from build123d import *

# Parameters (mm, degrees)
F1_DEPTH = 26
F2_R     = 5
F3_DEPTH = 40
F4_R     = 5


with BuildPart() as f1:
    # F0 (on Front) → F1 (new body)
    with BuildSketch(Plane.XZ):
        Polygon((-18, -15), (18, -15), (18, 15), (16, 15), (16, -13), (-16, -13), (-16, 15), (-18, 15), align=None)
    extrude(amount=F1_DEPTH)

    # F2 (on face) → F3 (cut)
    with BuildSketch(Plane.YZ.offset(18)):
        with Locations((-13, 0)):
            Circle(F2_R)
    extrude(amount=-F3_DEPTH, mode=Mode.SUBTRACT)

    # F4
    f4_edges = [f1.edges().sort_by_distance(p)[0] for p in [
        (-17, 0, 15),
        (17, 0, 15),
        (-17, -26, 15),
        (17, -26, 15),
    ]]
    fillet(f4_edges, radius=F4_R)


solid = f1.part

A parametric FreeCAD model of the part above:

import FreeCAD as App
import Part
import Sketcher

V = App.Vector
Q = App.Units.Quantity


def edges_at(feature, points):
    """Names of the edges that pass closest to the given points."""
    edges = feature.Shape.Edges
    near = lambda p: min(range(len(edges)), key=lambda i: edges[i].distToShape(Part.Vertex(*p))[0])
    return sorted({f"Edge{near(p) + 1}" for p in points})

doc = App.newDocument("Part")
body = doc.addObject("PartDesign::Body", "Body")

sketch1 = doc.addObject("Sketcher::SketchObject", "Sketch")
body.addObject(sketch1)
sketch1.AttachmentSupport = (doc.XZ_Plane, [""])
sketch1.MapMode = "FlatFace"
sketch1.addGeometry(Part.LineSegment(V(-18, -15, 0), V(18, -15, 0)), False)
sketch1.addGeometry(Part.LineSegment(V(18, -15, 0), V(18, 15, 0)), False)
sketch1.addGeometry(Part.LineSegment(V(18, 15, 0), V(16, 15, 0)), False)
sketch1.addGeometry(Part.LineSegment(V(16, 15, 0), V(16, -13, 0)), False)
sketch1.addGeometry(Part.LineSegment(V(16, -13, 0), V(-16, -13, 0)), False)
sketch1.addGeometry(Part.LineSegment(V(-16, -13, 0), V(-16, 15, 0)), False)
sketch1.addGeometry(Part.LineSegment(V(-16, 15, 0), V(-18, 15, 0)), False)
sketch1.addGeometry(Part.LineSegment(V(-18, 15, 0), V(-18, -15, 0)), False)
sketch1.addConstraint(Sketcher.Constraint("Coincident", 0, 2, 1, 1))
sketch1.addConstraint(Sketcher.Constraint("Coincident", 1, 2, 2, 1))
sketch1.addConstraint(Sketcher.Constraint("Coincident", 2, 2, 3, 1))
sketch1.addConstraint(Sketcher.Constraint("Coincident", 3, 2, 4, 1))
sketch1.addConstraint(Sketcher.Constraint("Coincident", 4, 2, 5, 1))
sketch1.addConstraint(Sketcher.Constraint("Coincident", 5, 2, 6, 1))
sketch1.addConstraint(Sketcher.Constraint("Coincident", 6, 2, 7, 1))
sketch1.addConstraint(Sketcher.Constraint("Coincident", 7, 2, 0, 1))
sketch1.addConstraint(Sketcher.Constraint("Horizontal", 0))
sketch1.addConstraint(Sketcher.Constraint("Vertical", 1))
sketch1.addConstraint(Sketcher.Constraint("Horizontal", 2))
sketch1.addConstraint(Sketcher.Constraint("Vertical", 3))
sketch1.addConstraint(Sketcher.Constraint("Horizontal", 4))
sketch1.addConstraint(Sketcher.Constraint("Vertical", 5))
sketch1.addConstraint(Sketcher.Constraint("Horizontal", 6))
sketch1.addConstraint(Sketcher.Constraint("Vertical", 7))
sketch1.addConstraint(Sketcher.Constraint("Symmetric", 0, 2, 6, 2, -1, 1))
sketch1.addConstraint(Sketcher.Constraint("Symmetric", 2, 2, 5, 2, -2))
sketch1.addConstraint(Sketcher.Constraint("DistanceX", 0, 1, 0, 2, Q("36 mm")))
sketch1.addConstraint(Sketcher.Constraint("DistanceX", 2, 2, 2, 1, Q("2 mm")))
sketch1.addConstraint(Sketcher.Constraint("DistanceY", 1, 1, 1, 2, Q("30 mm")))
sketch1.addConstraint(Sketcher.Constraint("DistanceY", 3, 2, 3, 1, Q("28 mm")))
pad1 = doc.addObject("PartDesign::Pad", "Pad")
body.addObject(pad1)
pad1.Profile = sketch1
pad1.Length = 26

sketch2 = doc.addObject("Sketcher::SketchObject", "Sketch001")
body.addObject(sketch2)
sketch2.AttachmentSupport = (doc.YZ_Plane, [""])
sketch2.MapMode = "FlatFace"
sketch2.AttachmentOffset = App.Placement(V(0, 0, 18), App.Rotation())
sketch2.addGeometry(Part.Circle(V(-13, 0, 0), V(0, 0, 1), 5), False)
sketch2.addConstraint(Sketcher.Constraint("PointOnObject", 0, 3, -1))
sketch2.addConstraint(Sketcher.Constraint("Diameter", 0, Q("10 mm")))
sketch2.addConstraint(Sketcher.Constraint("DistanceX", 0, 3, -1, 1, Q("13 mm")))
pocket1 = doc.addObject("PartDesign::Pocket", "Pocket")
body.addObject(pocket1)
pocket1.Profile = sketch2
pocket1.Length = 40
doc.recompute()

fillet = doc.addObject("PartDesign::Fillet", "Fillet")
body.addObject(fillet)
fillet.Base = (pocket1, edges_at(pocket1, [
    (-17, 0, 15),
    (17, 0, 15),
    (-17, -26, 15),
    (17, -26, 15),
]))
fillet.Radius = 5

doc.recompute()
